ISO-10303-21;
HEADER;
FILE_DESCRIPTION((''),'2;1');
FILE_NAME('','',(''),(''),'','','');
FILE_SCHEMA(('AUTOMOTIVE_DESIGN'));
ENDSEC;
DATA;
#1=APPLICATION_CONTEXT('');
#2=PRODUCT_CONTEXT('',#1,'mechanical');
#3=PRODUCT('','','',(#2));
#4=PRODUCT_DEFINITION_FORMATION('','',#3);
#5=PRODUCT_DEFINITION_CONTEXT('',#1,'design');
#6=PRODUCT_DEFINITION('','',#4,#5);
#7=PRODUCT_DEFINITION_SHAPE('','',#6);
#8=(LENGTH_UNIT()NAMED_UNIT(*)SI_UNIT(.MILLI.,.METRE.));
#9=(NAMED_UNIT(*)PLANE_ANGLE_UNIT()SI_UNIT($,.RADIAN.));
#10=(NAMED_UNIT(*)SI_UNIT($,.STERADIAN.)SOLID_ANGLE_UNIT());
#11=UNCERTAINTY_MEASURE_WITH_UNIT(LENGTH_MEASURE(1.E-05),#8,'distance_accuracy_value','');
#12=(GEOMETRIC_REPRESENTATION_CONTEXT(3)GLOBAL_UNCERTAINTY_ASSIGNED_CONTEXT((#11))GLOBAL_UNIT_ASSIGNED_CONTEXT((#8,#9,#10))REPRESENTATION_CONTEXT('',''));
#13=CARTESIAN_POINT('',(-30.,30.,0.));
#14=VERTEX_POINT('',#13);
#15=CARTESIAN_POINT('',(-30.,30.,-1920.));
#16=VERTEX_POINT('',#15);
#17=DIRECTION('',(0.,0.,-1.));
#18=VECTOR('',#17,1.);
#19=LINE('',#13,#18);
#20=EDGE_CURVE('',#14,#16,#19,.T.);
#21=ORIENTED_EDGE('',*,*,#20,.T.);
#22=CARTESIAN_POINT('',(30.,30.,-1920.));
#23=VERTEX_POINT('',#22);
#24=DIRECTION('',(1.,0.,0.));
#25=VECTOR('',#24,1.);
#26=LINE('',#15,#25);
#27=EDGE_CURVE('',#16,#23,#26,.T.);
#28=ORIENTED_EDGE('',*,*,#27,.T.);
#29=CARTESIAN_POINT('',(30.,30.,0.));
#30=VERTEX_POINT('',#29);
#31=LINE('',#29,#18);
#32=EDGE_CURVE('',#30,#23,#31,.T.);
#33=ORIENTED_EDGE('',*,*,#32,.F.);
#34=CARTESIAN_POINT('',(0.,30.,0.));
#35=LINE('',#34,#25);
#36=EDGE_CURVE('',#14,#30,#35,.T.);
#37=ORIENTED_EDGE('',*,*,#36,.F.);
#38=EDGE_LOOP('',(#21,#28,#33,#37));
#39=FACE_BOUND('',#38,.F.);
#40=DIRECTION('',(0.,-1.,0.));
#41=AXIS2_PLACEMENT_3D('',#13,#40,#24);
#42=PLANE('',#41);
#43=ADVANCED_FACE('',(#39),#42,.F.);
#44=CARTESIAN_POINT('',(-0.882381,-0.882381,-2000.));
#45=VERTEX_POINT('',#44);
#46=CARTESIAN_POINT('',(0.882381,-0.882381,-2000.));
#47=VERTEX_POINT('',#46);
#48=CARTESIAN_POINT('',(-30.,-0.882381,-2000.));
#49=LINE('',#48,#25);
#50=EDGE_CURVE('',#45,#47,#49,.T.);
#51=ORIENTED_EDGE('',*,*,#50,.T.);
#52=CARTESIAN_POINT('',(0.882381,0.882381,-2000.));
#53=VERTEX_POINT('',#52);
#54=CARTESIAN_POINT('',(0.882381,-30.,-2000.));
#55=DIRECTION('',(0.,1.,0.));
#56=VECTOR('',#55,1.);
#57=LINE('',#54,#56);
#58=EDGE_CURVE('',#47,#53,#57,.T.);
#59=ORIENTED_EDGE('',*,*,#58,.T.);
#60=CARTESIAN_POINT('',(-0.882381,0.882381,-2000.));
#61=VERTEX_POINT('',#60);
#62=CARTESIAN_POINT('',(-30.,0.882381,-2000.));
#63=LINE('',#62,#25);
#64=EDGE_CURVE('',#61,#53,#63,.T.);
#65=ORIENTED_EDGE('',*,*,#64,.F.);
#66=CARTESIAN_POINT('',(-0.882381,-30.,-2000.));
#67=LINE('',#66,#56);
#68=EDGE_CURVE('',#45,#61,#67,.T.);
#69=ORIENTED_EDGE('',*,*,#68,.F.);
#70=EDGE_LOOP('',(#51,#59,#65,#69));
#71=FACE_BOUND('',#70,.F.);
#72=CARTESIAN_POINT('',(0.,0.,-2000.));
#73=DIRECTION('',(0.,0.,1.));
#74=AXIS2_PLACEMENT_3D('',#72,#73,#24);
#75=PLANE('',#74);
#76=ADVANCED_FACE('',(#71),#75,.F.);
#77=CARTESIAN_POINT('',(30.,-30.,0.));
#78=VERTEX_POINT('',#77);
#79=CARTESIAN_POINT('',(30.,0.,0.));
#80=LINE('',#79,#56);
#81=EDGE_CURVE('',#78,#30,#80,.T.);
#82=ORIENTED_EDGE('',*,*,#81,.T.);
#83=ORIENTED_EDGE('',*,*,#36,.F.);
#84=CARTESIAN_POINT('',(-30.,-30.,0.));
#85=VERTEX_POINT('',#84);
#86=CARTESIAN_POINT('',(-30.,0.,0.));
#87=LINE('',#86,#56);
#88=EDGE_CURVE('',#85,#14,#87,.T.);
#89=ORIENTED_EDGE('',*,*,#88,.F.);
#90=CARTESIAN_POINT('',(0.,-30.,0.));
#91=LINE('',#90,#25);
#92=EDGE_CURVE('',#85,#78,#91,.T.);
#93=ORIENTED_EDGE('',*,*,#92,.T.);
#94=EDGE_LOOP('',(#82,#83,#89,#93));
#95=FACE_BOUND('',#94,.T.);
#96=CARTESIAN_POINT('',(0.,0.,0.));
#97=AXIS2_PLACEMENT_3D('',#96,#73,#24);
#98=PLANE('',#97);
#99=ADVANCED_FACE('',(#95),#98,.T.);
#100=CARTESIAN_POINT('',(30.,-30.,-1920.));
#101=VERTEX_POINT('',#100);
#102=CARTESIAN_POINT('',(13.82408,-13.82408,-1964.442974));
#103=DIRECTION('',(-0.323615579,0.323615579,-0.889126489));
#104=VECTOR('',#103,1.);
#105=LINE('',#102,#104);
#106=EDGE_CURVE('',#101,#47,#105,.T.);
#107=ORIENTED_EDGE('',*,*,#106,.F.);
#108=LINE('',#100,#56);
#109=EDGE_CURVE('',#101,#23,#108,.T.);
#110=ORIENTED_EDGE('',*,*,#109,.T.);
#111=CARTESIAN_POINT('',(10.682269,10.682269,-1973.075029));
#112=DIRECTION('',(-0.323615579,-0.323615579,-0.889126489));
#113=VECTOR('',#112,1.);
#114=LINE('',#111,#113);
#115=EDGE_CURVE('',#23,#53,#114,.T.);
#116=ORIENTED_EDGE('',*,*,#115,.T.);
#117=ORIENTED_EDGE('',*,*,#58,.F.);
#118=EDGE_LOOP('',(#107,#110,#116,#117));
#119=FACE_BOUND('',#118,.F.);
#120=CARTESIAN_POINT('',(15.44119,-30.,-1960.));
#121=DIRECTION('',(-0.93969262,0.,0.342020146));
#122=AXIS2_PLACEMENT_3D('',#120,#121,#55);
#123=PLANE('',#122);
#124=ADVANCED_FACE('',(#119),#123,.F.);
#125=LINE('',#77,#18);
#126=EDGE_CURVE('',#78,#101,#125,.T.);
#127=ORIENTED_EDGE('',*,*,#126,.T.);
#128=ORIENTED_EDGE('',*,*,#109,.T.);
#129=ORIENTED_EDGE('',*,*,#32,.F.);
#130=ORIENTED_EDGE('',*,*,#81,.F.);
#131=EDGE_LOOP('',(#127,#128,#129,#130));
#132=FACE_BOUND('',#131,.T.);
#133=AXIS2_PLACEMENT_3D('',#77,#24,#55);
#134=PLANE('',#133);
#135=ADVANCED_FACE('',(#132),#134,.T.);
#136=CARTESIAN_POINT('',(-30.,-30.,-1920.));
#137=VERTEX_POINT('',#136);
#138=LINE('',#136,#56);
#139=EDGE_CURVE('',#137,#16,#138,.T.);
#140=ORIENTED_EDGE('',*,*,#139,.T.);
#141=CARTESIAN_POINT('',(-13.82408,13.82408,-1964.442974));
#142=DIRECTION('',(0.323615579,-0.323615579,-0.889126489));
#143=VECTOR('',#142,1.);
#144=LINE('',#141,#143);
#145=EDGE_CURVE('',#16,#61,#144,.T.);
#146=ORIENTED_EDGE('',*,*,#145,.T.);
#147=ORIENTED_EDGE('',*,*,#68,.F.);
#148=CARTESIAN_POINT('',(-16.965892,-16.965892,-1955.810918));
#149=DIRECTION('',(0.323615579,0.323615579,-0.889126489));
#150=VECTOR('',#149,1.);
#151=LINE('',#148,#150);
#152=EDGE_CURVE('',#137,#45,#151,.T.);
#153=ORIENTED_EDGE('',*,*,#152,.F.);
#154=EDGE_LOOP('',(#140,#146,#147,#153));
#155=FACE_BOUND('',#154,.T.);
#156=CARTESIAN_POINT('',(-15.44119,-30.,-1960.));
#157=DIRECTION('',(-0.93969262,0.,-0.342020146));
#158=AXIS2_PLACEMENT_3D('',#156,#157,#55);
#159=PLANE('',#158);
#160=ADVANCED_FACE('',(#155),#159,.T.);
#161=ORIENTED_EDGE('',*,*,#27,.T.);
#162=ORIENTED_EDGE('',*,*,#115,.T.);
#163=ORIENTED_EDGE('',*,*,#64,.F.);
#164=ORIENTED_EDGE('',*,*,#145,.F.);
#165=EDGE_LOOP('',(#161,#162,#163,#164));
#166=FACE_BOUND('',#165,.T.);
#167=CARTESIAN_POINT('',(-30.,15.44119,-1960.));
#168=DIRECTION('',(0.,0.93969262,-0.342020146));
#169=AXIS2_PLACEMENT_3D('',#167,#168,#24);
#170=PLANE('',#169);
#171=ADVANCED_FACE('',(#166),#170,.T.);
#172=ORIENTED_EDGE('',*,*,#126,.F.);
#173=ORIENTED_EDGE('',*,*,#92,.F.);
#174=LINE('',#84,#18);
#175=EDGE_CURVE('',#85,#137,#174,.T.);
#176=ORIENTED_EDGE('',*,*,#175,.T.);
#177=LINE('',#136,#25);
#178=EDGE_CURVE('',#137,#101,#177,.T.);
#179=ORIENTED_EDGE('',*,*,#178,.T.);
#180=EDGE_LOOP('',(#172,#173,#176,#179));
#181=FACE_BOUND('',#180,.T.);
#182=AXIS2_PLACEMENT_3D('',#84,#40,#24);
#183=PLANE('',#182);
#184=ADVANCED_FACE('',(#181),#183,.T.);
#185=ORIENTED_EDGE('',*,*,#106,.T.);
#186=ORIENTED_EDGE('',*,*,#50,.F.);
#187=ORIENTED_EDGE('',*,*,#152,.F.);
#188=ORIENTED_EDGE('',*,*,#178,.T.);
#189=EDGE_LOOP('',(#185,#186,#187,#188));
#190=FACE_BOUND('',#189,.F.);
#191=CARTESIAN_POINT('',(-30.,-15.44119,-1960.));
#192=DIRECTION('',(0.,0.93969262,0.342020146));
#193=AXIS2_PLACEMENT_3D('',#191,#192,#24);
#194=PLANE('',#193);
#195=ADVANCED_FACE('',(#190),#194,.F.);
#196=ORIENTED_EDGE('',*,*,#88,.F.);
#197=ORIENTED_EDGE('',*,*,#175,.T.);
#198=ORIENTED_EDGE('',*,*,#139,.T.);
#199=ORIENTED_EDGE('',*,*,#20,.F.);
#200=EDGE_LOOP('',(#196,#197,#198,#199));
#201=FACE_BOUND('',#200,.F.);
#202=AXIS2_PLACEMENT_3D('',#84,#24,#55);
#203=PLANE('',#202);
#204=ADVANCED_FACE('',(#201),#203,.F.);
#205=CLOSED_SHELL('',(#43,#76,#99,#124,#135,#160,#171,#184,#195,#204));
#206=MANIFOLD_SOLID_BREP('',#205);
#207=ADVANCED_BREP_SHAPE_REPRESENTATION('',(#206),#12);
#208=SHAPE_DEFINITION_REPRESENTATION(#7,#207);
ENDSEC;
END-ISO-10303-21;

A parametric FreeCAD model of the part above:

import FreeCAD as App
import Part
import Sketcher


def edges_at(feature, points):
    """Names of the edges that pass closest to the given points."""
    edges = feature.Shape.Edges
    near = lambda p: min(range(len(edges)), key=lambda i: edges[i].distToShape(Part.Vertex(*p))[0])
    return sorted({f"Edge{near(p) + 1}" for p in points})

doc = App.newDocument("Part")
body = doc.addObject("PartDesign::Body", "Body")

# Sketch on XY plane
sketch1 = body.newObject("Sketcher::SketchObject", "Sketch")
sketch1.AttachmentSupport = (doc.getObject("XY_Plane"), [""])
sketch1.MapMode = "FlatFace"
sketch1.addGeometry([
    Part.LineSegment(App.Vector(-30, 30, 0), App.Vector(-30, -30, 0)),
    Part.LineSegment(App.Vector(-30, -30, 0), App.Vector(30, -30, 0)),
    Part.LineSegment(App.Vector(30, -30, 0), App.Vector(30, 30, 0)),
    Part.LineSegment(App.Vector(30, 30, 0), App.Vector(-30, 30, 0)),
], False)
sketch1.addConstraint([
    Sketcher.Constraint("Coincident", 0, 2, 1, 1),
    Sketcher.Constraint("Coincident", 1, 2, 2, 1),
    Sketcher.Constraint("Coincident", 2, 2, 3, 1),
    Sketcher.Constraint("Coincident", 3, 2, 0, 1),
    Sketcher.Constraint("Vertical", 0),
    Sketcher.Constraint("Horizontal", 1),
    Sketcher.Constraint("Vertical", 2),
    Sketcher.Constraint("Horizontal", 3),
    Sketcher.Constraint("Symmetric", 0, 2, 2, 2, -1, 1),
    Sketcher.Constraint("Equal", 3, 0),
    Sketcher.Constraint("DistanceX", 1, 1, 1, 2, 60.0),
])
pad1 = body.newObject("PartDesign::Pad", "Pad")
pad1.Profile = sketch1
pad1.Length = 2000
pad1.Reversed = True
doc.recompute()

chamfer = body.newObject("PartDesign::Chamfer", "Chamfer")
chamfer.Base = (pad1, edges_at(pad1, [
    (30, 0, -2000),
    (0, 30, -2000),
    (-30, 0, -2000),
    (0, -30, -2000),
]))
chamfer.ChamferType = "Two distances"
chamfer.Size = 80
chamfer.Size2 = 29.117619

doc.recompute()
